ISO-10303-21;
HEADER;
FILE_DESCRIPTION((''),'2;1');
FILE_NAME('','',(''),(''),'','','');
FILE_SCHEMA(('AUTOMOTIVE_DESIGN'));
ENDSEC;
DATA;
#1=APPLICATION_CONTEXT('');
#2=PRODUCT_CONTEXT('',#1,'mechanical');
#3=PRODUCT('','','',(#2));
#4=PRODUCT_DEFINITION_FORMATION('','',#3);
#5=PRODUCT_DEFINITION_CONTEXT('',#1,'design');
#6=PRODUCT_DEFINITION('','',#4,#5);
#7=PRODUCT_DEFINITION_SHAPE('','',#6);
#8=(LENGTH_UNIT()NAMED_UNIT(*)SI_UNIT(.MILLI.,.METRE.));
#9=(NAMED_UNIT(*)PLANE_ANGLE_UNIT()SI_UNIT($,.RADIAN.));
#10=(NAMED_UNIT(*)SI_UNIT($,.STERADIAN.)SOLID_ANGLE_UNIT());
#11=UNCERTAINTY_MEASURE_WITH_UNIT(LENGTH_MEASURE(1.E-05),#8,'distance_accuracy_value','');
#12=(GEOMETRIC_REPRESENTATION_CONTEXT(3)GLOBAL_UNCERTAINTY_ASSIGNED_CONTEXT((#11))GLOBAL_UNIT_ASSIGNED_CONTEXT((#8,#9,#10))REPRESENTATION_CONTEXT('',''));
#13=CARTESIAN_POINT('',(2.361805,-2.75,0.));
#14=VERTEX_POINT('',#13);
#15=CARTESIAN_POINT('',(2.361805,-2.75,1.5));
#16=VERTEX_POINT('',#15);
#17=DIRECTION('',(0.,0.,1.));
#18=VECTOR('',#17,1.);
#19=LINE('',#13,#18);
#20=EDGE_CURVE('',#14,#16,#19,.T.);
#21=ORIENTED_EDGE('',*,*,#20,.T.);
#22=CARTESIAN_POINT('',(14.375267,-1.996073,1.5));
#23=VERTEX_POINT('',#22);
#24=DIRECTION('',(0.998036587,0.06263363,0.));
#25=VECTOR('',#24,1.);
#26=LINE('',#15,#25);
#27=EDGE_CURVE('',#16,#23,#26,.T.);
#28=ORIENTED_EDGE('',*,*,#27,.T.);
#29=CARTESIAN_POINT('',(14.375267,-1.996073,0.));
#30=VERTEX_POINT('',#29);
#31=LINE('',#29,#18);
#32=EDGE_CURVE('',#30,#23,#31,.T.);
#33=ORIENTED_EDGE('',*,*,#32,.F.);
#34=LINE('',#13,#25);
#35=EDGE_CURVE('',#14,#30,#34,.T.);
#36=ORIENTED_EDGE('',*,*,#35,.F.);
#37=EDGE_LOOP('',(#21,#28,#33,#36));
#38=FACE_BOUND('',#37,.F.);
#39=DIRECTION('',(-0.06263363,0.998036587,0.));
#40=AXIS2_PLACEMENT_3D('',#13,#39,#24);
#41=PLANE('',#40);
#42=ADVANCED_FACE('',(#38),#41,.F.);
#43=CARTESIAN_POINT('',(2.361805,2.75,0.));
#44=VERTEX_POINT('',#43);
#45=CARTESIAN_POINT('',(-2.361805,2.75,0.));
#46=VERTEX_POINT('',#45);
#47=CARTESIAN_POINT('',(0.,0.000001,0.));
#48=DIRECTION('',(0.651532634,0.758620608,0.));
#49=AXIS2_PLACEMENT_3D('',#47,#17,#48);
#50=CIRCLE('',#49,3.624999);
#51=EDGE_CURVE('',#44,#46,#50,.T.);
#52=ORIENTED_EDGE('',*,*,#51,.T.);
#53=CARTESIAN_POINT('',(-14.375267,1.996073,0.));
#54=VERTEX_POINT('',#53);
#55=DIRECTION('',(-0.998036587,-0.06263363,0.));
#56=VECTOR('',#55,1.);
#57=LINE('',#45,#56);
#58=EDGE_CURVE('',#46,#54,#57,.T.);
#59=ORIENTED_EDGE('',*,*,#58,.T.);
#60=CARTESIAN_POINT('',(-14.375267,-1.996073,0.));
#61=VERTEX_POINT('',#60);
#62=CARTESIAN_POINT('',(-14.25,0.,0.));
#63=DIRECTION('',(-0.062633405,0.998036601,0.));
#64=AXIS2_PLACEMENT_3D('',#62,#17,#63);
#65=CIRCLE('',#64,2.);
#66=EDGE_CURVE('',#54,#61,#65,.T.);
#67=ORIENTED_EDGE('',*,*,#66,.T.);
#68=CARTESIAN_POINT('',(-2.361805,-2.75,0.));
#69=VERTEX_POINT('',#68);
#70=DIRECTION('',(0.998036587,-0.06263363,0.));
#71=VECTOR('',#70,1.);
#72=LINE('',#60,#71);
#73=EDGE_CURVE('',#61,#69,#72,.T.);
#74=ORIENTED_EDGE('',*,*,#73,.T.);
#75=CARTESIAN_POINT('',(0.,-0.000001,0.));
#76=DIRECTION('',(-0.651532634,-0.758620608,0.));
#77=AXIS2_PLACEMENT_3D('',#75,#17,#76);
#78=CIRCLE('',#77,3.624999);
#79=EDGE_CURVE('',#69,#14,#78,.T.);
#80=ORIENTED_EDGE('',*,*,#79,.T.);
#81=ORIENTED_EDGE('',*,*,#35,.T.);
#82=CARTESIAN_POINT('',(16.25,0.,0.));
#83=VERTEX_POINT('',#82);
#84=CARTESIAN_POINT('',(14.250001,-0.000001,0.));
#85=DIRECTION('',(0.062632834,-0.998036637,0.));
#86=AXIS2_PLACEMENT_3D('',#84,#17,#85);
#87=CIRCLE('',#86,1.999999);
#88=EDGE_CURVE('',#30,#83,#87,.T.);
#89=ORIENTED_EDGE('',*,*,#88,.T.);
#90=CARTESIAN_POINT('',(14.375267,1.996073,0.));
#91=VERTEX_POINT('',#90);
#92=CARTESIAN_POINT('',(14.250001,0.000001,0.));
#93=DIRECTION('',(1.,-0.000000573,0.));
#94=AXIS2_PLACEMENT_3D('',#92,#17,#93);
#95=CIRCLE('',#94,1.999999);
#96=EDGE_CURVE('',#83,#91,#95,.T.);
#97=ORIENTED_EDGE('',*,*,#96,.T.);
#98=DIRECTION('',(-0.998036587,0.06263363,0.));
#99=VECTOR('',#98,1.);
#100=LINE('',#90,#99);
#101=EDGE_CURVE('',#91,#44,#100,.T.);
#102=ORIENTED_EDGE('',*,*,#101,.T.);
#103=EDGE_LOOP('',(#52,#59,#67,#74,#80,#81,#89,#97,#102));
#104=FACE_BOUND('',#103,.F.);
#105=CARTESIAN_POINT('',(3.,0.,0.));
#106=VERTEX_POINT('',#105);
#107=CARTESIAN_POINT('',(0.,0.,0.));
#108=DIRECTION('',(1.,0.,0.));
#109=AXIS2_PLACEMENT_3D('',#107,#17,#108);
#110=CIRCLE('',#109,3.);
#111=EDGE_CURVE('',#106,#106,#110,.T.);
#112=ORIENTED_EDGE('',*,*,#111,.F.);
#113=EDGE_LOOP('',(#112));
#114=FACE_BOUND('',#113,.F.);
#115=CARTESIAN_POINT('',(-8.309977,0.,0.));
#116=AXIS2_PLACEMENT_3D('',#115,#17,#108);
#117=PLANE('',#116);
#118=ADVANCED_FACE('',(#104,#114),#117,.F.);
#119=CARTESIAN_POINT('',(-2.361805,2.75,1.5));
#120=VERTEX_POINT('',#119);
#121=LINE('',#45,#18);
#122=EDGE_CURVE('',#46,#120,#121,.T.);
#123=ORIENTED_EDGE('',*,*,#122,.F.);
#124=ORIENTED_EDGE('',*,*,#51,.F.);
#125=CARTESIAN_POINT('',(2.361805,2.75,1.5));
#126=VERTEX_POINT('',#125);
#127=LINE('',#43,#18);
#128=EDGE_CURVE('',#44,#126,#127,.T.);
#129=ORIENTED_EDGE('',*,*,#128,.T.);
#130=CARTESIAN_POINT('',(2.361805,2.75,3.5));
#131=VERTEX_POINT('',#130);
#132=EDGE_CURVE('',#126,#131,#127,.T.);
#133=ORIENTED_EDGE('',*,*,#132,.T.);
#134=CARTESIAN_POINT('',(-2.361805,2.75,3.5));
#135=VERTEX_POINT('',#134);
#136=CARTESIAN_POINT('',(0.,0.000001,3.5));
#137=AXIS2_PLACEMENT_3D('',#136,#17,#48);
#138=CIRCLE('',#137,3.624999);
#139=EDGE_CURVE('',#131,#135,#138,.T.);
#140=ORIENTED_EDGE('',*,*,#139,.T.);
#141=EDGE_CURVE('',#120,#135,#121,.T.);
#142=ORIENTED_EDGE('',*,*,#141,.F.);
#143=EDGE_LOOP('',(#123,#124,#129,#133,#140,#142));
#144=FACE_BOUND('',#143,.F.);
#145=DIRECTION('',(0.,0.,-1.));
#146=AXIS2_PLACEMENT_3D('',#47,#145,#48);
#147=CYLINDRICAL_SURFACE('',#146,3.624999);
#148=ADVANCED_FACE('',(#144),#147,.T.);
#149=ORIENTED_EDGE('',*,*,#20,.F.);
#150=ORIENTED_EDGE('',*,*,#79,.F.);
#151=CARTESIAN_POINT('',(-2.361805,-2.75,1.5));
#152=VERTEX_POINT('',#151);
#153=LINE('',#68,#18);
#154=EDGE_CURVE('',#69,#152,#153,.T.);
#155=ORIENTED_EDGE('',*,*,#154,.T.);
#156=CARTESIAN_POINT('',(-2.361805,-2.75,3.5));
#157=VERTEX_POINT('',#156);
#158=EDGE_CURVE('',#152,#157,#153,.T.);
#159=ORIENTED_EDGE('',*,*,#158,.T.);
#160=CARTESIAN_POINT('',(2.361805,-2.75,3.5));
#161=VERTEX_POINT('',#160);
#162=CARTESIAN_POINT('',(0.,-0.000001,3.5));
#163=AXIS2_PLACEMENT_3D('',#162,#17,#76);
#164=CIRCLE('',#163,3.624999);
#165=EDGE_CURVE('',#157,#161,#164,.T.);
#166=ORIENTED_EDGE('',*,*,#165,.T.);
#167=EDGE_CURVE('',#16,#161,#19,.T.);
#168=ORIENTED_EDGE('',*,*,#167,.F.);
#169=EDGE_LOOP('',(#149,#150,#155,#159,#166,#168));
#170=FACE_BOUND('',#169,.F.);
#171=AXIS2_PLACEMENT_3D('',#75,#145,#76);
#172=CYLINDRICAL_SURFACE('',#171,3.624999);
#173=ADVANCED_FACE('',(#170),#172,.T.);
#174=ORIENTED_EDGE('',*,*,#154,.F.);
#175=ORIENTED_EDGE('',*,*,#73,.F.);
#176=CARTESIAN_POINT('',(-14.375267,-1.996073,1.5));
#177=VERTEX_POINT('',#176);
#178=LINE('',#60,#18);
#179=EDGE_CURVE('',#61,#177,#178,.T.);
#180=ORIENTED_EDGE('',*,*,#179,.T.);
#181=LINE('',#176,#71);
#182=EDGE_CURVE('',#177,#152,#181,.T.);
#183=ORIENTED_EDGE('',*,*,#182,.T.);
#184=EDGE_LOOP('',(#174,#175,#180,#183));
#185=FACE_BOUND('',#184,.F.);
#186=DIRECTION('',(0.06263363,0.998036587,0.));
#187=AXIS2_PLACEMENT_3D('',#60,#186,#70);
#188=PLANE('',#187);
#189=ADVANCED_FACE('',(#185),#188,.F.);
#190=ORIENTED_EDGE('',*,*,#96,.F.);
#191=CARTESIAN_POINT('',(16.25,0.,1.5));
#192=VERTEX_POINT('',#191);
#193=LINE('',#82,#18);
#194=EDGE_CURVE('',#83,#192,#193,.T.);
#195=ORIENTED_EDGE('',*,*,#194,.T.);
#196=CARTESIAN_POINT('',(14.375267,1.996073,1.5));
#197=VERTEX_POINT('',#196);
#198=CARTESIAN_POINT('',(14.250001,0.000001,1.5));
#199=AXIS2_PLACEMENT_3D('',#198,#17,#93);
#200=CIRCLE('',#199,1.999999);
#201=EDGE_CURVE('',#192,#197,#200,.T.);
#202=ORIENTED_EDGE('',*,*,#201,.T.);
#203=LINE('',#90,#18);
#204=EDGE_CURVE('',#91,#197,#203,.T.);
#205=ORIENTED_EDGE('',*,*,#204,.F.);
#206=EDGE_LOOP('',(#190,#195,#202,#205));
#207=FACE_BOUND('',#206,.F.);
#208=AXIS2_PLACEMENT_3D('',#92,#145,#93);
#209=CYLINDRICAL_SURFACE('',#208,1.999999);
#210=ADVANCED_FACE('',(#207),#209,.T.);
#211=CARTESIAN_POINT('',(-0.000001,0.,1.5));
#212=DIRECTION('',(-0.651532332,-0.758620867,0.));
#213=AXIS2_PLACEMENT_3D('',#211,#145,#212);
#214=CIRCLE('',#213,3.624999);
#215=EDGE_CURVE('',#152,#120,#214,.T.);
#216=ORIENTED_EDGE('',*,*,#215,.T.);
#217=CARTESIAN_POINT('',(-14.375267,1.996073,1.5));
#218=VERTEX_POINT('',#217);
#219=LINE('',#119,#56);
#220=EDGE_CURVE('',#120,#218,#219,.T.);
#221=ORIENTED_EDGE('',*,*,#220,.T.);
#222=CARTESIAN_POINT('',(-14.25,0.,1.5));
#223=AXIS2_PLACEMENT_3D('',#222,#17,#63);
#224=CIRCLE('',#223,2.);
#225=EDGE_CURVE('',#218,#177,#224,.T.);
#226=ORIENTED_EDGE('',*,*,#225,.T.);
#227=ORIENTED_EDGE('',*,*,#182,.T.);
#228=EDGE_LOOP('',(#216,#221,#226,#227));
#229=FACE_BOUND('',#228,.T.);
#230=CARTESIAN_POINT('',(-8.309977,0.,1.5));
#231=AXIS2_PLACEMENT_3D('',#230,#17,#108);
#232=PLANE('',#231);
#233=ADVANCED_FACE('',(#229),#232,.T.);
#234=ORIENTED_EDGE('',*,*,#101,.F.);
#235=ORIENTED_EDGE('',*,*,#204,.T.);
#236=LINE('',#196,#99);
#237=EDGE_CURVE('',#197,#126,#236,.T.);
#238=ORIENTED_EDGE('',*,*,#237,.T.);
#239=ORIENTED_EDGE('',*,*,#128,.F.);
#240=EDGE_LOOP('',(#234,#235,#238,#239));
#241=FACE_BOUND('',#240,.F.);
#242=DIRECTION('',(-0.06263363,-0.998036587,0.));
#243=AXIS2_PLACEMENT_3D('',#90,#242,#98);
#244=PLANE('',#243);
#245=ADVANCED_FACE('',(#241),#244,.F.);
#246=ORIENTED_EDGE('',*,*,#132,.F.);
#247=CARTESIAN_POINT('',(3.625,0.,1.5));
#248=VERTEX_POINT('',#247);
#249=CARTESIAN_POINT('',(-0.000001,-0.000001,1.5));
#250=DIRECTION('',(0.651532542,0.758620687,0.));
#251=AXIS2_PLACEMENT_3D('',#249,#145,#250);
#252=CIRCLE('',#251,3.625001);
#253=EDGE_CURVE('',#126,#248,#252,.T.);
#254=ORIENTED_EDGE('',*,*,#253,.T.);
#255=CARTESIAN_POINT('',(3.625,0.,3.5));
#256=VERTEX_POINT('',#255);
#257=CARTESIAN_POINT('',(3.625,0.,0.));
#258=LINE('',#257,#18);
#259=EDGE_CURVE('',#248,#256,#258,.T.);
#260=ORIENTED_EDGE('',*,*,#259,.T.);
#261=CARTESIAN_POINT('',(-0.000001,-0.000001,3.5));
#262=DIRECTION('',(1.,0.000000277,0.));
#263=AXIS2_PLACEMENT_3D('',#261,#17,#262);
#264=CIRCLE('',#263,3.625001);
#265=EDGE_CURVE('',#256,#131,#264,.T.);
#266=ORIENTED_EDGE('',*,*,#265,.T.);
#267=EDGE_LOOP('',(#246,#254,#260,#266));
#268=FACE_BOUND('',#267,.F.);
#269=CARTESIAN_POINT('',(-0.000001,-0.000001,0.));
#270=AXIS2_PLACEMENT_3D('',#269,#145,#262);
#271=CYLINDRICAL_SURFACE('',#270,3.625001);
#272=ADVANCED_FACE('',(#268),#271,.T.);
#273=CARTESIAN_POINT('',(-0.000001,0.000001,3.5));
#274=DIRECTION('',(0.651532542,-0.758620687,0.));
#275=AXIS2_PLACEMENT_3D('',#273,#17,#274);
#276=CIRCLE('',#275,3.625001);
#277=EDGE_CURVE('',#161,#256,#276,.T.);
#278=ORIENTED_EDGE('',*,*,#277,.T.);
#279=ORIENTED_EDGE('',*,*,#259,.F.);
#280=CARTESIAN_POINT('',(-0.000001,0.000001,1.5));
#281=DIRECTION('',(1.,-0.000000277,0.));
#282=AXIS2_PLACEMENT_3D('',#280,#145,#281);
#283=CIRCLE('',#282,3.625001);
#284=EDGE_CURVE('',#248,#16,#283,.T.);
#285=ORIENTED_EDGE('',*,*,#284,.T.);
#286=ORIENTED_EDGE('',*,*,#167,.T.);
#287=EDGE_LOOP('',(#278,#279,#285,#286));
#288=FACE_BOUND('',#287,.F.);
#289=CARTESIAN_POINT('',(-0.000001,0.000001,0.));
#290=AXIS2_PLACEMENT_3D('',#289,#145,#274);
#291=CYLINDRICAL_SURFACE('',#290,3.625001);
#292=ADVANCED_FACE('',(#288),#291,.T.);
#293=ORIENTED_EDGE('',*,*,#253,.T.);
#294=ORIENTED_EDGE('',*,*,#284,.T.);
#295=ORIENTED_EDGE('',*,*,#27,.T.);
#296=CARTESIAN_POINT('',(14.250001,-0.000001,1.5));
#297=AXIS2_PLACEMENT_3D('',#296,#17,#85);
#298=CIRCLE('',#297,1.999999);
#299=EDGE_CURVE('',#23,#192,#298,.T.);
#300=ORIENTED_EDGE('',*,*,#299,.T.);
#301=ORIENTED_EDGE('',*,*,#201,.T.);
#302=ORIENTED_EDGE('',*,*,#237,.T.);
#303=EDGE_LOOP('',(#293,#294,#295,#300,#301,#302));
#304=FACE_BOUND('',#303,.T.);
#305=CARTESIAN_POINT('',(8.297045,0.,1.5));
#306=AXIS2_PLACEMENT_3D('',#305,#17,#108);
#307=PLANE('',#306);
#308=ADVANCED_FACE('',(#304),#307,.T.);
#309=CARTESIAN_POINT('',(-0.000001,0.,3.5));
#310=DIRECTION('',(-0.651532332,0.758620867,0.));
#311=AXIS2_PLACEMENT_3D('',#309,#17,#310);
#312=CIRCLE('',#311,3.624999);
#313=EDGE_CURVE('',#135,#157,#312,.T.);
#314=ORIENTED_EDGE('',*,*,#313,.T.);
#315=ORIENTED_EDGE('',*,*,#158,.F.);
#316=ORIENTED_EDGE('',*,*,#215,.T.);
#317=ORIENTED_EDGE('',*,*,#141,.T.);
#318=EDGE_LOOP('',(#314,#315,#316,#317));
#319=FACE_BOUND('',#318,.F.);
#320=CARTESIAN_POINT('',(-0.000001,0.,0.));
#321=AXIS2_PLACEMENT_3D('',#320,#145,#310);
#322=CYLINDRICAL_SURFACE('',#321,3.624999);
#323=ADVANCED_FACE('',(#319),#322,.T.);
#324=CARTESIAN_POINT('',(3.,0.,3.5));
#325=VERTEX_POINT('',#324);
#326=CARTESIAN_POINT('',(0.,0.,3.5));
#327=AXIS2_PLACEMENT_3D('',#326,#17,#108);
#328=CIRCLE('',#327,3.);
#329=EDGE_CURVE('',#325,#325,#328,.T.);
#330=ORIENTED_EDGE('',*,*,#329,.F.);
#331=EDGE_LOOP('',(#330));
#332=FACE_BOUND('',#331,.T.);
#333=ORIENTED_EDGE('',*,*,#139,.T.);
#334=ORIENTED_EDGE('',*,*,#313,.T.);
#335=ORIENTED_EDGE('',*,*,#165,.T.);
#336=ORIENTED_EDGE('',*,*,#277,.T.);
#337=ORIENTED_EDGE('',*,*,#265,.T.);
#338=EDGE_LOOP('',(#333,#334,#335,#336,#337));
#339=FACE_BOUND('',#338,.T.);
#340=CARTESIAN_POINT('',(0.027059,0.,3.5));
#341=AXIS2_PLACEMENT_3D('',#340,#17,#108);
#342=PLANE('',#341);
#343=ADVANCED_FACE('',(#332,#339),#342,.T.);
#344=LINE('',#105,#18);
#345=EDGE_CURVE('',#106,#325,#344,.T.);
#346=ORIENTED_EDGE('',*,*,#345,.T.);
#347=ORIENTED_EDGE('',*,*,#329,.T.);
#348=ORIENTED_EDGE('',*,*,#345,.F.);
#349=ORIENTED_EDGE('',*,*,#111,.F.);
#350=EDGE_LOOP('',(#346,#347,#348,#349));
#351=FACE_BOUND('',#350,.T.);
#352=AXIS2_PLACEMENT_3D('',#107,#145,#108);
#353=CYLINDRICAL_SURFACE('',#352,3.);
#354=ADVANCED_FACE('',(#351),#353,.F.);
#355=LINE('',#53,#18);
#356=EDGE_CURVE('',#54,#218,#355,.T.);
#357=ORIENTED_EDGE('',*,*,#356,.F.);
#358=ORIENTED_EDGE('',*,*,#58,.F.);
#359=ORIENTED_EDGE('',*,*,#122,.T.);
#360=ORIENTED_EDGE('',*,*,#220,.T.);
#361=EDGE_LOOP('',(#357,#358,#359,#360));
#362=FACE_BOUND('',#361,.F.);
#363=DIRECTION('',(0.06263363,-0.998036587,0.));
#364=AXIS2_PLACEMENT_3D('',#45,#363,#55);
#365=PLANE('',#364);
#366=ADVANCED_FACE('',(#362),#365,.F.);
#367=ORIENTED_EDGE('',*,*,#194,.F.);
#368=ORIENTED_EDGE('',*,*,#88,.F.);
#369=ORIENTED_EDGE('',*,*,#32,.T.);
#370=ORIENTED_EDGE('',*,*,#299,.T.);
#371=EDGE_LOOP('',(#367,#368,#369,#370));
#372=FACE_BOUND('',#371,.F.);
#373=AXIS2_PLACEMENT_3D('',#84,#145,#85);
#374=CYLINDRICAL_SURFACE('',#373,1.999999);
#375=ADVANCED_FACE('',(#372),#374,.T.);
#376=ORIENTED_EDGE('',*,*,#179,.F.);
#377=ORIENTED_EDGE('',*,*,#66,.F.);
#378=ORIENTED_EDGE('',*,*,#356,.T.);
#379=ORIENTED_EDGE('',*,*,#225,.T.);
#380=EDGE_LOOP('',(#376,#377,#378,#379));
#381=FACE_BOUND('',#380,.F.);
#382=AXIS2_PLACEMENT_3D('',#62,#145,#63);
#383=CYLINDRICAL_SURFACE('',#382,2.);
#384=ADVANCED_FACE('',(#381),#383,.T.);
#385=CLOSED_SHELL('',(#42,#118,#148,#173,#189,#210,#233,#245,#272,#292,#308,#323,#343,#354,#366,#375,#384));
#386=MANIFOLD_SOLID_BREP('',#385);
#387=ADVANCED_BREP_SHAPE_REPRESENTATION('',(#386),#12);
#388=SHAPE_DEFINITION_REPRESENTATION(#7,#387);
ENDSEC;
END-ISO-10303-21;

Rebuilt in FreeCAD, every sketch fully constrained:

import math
import FreeCAD as App
import Part
import Sketcher

doc = App.newDocument("Part")
body = doc.addObject("PartDesign::Body", "Body")

# Sketch on XY plane
sketch1 = doc.addObject("Sketcher::SketchObject", "Sketch")
body.addObject(sketch1)
sketch1.AttachmentSupport = (doc.XY_Plane, [""])
sketch1.MapMode = "FlatFace"
sketch1.addGeometry([
    Part.ArcOfCircle(Part.Circle(App.Vector(0, 0, 0), App.Vector(0, 0, 1), 3.6), math.radians(-49), math.radians(0)),  # 0
    Part.ArcOfCircle(Part.Circle(App.Vector(0, 0, 0), App.Vector(0, 0, 1), 3.6), math.radians(0), math.radians(49)),  # 1
    Part.ArcOfCircle(Part.Circle(App.Vector(0, 0, 0), App.Vector(0, 0, 1), 3.6), math.radians(49), math.radians(131)),  # 2
    Part.ArcOfCircle(Part.Circle(App.Vector(0, 0, 0), App.Vector(0, 0, 1), 3.6), math.radians(131), math.radians(229)),  # 3
    Part.ArcOfCircle(Part.Circle(App.Vector(0, 0, 0), App.Vector(0, 0, 1), 3.6), math.radians(-131), math.radians(-49)),  # 4
    Part.Circle(App.Vector(0, 0, 0), App.Vector(0, 0, 1), 3),  # 5
], False)
sketch1.addConstraint([
    Sketcher.Constraint("Tangent", 0, 2, 1, 1),
    Sketcher.Constraint("Tangent", 1, 2, 2, 1),
    Sketcher.Constraint("Tangent", 2, 2, 3, 1),
    Sketcher.Constraint("Tangent", 3, 2, 4, 1),
    Sketcher.Constraint("Tangent", 4, 2, 0, 1),
    Sketcher.Constraint("Coincident", 0, 3, -1, 1),
    Sketcher.Constraint("Coincident", 2, 3, -1, 1),
    Sketcher.Constraint("Coincident", 5, 3, -1, 1),
    Sketcher.Constraint("PointOnObject", 0, 2, -1),
    Sketcher.Constraint("Horizontal", 1, 2, 2, 2),
    Sketcher.Constraint("Horizontal", 3, 2, 4, 2),
    Sketcher.Constraint("Vertical", 2, 2, 3, 2),
    Sketcher.Constraint("Diameter", 5, 6.0),
    Sketcher.Constraint("Radius", 0, 3.625001),
    Sketcher.Constraint("DistanceY", -1, 1, 1, 2, 2.75),
])
pad1 = doc.addObject("PartDesign::Pad", "Pad")
body.addObject(pad1)
pad1.Profile = sketch1
pad1.Length = 3.5

# Sketch on XY plane
sketch2 = doc.addObject("Sketcher::SketchObject", "Sketch001")
body.addObject(sketch2)
sketch2.AttachmentSupport = (doc.XY_Plane, [""])
sketch2.MapMode = "FlatFace"
sketch2.addGeometry([
    Part.ArcOfCircle(Part.Circle(App.Vector(0, 0, 0), App.Vector(0, 0, 1), 3.6), math.radians(131), math.radians(229)),  # 0
    Part.LineSegment(App.Vector(-2.4, 2.8, 0), App.Vector(-14.4, 2, 0)),  # 1
    Part.ArcOfCircle(Part.Circle(App.Vector(-14.3, 0, 0), App.Vector(0, 0, 1), 2), math.radians(94), math.radians(266)),  # 2
    Part.LineSegment(App.Vector(-14.4, -2, 0), App.Vector(-2.4, -2.8, 0)),  # 3
    Part.ArcOfCircle(Part.Circle(App.Vector(0, 0, 0), App.Vector(0, 0, 1), 3.6), math.radians(0), math.radians(49)),  # 4
    Part.ArcOfCircle(Part.Circle(App.Vector(0, 0, 0), App.Vector(0, 0, 1), 3.6), math.radians(-49), math.radians(0)),  # 5
    Part.LineSegment(App.Vector(2.4, -2.8, 0), App.Vector(14.4, -2, 0)),  # 6
    Part.ArcOfCircle(Part.Circle(App.Vector(14.3, 0, 0), App.Vector(0, 0, 1), 2), math.radians(-86), math.radians(0)),  # 7
    Part.ArcOfCircle(Part.Circle(App.Vector(14.3, 0, 0), App.Vector(0, 0, 1), 2), math.radians(0), math.radians(86)),  # 8
    Part.LineSegment(App.Vector(14.4, 2, 0), App.Vector(2.4, 2.8, 0)),  # 9
], False)
sketch2.addConstraint([
    Sketcher.Constraint("Coincident", 0, 1, 1, 1),
    Sketcher.Constraint("Tangent", 1, 2, 2, 1),
    Sketcher.Constraint("Tangent", 2, 2, 3, 1),
    Sketcher.Constraint("Coincident", 3, 2, 0, 2),
    Sketcher.Constraint("Tangent", 4, 1, 5, 2),
    Sketcher.Constraint("Coincident", 5, 1, 6, 1),
    Sketcher.Constraint("Tangent", 6, 2, 7, 1),
    Sketcher.Constraint("Tangent", 7, 2, 8, 1),
    Sketcher.Constraint("Tangent", 8, 2, 9, 1),
    Sketcher.Constraint("Coincident", 9, 2, 4, 2),
    Sketcher.Constraint("Coincident", 0, 3, -1, 1),
    Sketcher.Constraint("Coincident", 4, 3, -1, 1),
    Sketcher.Constraint("Equal", 4, 5),
    Sketcher.Constraint("Equal", 2, 7),
    Sketcher.Constraint("Equal", 7, 8),
    Sketcher.Constraint("Symmetric", 2, 3, 7, 3, -1, 1),
    Sketcher.Constraint("Symmetric", 0, 1, 5, 1, -1, 1),
    Sketcher.Constraint("Symmetric", 2, 2, 6, 2, -2),
    Sketcher.Constraint("PointOnObject", 4, 1, -1),
    Sketcher.Constraint("PointOnObject", 7, 2, -1),
    Sketcher.Constraint("Parallel", 3, 9),
    Sketcher.Constraint("Radius", 2, 2.0),
    Sketcher.Constraint("Radius", 0, 3.624999),
    Sketcher.Constraint("DistanceX", 2, 3, 7, 3, 28.500002),
    Sketcher.Constraint("DistanceY", 3, 2, 0, 1, 5.5),
])
pad2 = doc.addObject("PartDesign::Pad", "Pad001")
body.addObject(pad2)
pad2.Profile = sketch2
pad2.Length = 1.5

doc.recompute()
